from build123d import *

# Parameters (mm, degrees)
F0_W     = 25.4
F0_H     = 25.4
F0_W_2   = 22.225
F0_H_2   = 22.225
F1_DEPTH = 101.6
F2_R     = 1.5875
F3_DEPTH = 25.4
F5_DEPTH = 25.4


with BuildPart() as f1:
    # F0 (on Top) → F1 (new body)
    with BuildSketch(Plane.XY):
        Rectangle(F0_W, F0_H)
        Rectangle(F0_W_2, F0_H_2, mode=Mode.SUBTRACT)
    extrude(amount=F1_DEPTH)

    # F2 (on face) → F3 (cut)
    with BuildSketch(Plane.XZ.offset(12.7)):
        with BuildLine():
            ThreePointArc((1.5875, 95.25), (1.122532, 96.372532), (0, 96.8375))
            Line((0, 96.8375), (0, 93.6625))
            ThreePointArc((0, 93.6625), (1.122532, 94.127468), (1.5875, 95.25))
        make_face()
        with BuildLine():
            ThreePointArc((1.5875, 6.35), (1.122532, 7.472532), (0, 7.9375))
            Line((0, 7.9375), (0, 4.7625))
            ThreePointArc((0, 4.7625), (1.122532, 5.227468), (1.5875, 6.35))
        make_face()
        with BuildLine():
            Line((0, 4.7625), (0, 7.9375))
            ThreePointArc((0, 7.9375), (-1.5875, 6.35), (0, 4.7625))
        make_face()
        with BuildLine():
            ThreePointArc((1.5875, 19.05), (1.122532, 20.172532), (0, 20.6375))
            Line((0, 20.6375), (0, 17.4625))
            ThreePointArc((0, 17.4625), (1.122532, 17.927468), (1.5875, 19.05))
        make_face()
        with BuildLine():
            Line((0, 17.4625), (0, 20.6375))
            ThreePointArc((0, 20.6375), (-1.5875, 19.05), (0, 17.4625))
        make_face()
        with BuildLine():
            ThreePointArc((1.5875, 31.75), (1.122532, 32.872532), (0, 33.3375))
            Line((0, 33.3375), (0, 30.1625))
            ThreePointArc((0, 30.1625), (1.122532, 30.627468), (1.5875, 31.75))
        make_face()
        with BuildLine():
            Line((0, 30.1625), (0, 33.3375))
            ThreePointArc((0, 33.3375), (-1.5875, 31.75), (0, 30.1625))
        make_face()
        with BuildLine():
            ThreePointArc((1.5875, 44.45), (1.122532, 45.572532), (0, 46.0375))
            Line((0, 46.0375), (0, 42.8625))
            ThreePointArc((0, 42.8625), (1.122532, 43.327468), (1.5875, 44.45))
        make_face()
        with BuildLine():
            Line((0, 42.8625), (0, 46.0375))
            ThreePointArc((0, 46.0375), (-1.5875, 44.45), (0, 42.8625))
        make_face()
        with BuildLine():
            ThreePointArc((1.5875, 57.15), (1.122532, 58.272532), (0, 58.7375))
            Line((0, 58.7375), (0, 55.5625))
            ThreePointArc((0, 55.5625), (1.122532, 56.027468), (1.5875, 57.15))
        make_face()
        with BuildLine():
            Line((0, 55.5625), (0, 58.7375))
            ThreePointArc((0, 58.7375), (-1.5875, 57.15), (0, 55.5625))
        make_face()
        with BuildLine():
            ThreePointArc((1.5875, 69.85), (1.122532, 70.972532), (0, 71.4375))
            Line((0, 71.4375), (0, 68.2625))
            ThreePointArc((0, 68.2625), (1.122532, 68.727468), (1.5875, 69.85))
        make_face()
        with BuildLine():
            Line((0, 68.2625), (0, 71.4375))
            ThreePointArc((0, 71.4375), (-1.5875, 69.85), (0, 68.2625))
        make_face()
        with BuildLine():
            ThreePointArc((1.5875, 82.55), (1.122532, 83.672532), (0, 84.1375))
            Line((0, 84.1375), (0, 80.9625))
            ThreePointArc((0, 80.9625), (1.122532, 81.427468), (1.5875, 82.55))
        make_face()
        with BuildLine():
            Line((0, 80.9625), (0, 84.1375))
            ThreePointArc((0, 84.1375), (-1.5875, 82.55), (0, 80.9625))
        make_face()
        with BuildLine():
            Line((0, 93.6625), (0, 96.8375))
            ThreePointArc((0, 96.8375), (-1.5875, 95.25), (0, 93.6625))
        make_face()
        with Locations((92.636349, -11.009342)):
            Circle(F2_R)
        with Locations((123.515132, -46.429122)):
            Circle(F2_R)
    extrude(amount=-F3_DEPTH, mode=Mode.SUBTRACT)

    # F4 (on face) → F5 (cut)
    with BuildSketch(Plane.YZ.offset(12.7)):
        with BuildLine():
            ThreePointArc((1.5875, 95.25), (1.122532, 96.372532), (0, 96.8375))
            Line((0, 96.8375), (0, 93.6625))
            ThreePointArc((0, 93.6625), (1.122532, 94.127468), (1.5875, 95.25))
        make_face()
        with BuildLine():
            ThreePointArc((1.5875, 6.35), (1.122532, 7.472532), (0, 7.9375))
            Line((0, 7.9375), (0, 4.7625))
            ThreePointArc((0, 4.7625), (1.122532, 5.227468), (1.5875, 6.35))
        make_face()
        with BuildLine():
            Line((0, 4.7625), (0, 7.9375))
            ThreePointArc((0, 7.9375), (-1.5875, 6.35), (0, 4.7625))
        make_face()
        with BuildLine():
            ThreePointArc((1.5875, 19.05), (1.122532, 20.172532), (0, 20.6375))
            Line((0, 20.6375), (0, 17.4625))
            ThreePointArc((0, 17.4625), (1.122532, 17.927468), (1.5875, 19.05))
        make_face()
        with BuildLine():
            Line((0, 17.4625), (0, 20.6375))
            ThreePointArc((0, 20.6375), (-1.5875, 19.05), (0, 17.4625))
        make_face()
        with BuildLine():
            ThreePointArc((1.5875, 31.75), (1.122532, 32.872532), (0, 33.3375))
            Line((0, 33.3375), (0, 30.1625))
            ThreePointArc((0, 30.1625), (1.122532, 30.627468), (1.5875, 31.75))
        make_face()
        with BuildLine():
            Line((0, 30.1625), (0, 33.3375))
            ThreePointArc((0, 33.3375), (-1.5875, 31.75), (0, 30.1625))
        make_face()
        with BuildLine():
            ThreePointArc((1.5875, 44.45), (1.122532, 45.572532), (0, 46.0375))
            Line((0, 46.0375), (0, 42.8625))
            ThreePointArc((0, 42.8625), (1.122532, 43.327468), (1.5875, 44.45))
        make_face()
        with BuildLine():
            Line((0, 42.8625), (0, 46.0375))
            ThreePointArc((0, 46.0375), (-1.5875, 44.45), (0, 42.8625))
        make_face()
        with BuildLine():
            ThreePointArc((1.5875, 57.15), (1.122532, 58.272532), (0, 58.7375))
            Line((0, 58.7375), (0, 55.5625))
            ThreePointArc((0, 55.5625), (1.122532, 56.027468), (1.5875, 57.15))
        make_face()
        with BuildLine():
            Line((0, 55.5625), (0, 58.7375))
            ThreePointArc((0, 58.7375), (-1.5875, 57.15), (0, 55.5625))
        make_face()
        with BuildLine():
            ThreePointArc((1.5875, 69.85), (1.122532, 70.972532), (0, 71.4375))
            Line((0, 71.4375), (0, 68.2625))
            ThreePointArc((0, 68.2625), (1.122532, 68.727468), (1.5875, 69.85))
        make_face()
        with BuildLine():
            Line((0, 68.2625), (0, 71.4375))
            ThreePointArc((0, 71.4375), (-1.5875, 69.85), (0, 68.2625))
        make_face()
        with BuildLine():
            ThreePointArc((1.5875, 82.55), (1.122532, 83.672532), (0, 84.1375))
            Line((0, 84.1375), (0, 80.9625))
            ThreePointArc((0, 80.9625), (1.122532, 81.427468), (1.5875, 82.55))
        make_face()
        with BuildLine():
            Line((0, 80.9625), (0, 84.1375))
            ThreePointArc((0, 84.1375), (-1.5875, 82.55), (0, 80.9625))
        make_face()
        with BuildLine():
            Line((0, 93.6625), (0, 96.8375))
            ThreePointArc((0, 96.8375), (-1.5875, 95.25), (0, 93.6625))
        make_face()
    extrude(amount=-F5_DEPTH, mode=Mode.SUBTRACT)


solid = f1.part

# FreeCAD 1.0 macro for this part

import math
import FreeCAD as App
import Part
import Sketcher

V = App.Vector
Q = App.Units.Quantity


def add_polygon(sketch, points):
    """Adds a closed chain of lines whose ends are joined by coincident constraints."""
    first, n = sketch.GeometryCount, len(points)
    for a, b in zip(points, points[1:] + points[:1]):
        sketch.addGeometry(Part.LineSegment(App.Vector(*a, 0), App.Vector(*b, 0)), False)
    for i in range(n):
        sketch.addConstraint(Sketcher.Constraint("Coincident", first + i, 2, first + (i + 1) % n, 1))

doc = App.newDocument("Part")
params = doc.addObject("Spreadsheet::Sheet", "Params")
for row, (alias, value) in enumerate([
    ("sketch1_width", "1 in"),
    ("sketch1_width2", "0.875 in"),
    ("pad1_length", "4 in"),
    ("sketch2_diameter", "0.125 in"),
    ("pocket1_length", "1 in"),
    ("sketch3_radius", "0.0625 in"),
    ("pocket2_length", "1 in"),
], start=1):
    params.set(f"A{row}", alias)
    params.set(f"B{row}", "=" + value)
    params.setAlias(f"B{row}", alias)

body = doc.addObject("PartDesign::Body", "Body")

# Sketch on XY plane
sketch1 = doc.addObject("Sketcher::SketchObject", "Sketch")
body.addObject(sketch1)
sketch1.AttachmentSupport = (doc.XY_Plane, [""])
sketch1.MapMode = "FlatFace"
add_polygon(sketch1, [(-13, 13), (-13, -13), (13, -13), (13, 13)])  # lines 0-3
add_polygon(sketch1, [(11, -11), (-11, -11), (-11, 11), (11, 11)])  # lines 4-7
sketch1.addConstraint([
    Sketcher.Constraint("Vertical", 0),
    Sketcher.Constraint("Horizontal", 1),
    Sketcher.Constraint("Vertical", 2),
    Sketcher.Constraint("Horizontal", 3),
    Sketcher.Constraint("Horizontal", 4),
    Sketcher.Constraint("Vertical", 5),
    Sketcher.Constraint("Horizontal", 6),
    Sketcher.Constraint("Vertical", 7),
    Sketcher.Constraint("Symmetric", 0, 2, 2, 2, -1, 1),
    Sketcher.Constraint("Symmetric", 4, 2, 6, 2, -1, 1),
    Sketcher.Constraint("Equal", 3, 0),
    Sketcher.Constraint("Equal", 6, 5),
    Sketcher.Constraint("DistanceX", 1, 1, 1, 2, Q("1 in")),
    Sketcher.Constraint("DistanceX", 4, 2, 4, 1, Q("0.875 in")),
])
sketch1.setExpression("Constraints[20]", "Params.sketch1_width")
sketch1.setExpression("Constraints[21]", "Params.sketch1_width2")
pad1 = doc.addObject("PartDesign::Pad", "Pad")
body.addObject(pad1)
pad1.Profile = sketch1
pad1.setExpression("Length", "Params.pad1_length")

# Sketch on XZ plane
sketch2 = doc.addObject("Sketcher::SketchObject", "Sketch001")
body.addObject(sketch2)
sketch2.AttachmentSupport = (doc.XZ_Plane, [""])
sketch2.MapMode = "FlatFace"
sketch2.AttachmentOffset = App.Placement(V(0, 0, 0.5 * 25.4), App.Rotation())
sketch2.addGeometry([
    Part.ArcOfCircle(Part.Circle(V(0, 95.2, 0), V(0, 0, 1), 1.6), math.radians(0), math.radians(90)),  # 0
    Part.ArcOfCircle(Part.Circle(V(0, 95.2, 0), V(0, 0, 1), 1.6), math.radians(90), math.radians(270)),  # 1
    Part.ArcOfCircle(Part.Circle(V(0, 95.3, 0), V(0, 0, 1), 1.6), math.radians(-90), math.radians(0)),  # 2
    Part.ArcOfCircle(Part.Circle(V(0, 6.3, 0), V(0, 0, 1), 1.6), math.radians(0), math.radians(90)),  # 3
    Part.ArcOfCircle(Part.Circle(V(0, 6.3, 0), V(0, 0, 1), 1.6), math.radians(90), math.radians(270)),  # 4
    Part.ArcOfCircle(Part.Circle(V(0, 6.4, 0), V(0, 0, 1), 1.6), math.radians(-90), math.radians(0)),  # 5
    Part.ArcOfCircle(Part.Circle(V(0, 19, 0), V(0, 0, 1), 1.6), math.radians(0), math.radians(90)),  # 6
    Part.ArcOfCircle(Part.Circle(V(0, 19.1, 0), V(0, 0, 1), 1.6), math.radians(90), math.radians(270)),  # 7
    Part.ArcOfCircle(Part.Circle(V(0, 19.1, 0), V(0, 0, 1), 1.6), math.radians(-90), math.radians(0)),  # 8
    Part.ArcOfCircle(Part.Circle(V(0, 31.7, 0), V(0, 0, 1), 1.6), math.radians(0), math.radians(90)),  # 9
    Part.ArcOfCircle(Part.Circle(V(0, 31.8, 0), V(0, 0, 1), 1.6), math.radians(90), math.radians(270)),  # 10
    Part.ArcOfCircle(Part.Circle(V(0, 31.8, 0), V(0, 0, 1), 1.6), math.radians(-90), math.radians(0)),  # 11
    Part.ArcOfCircle(Part.Circle(V(0, 44.4, 0), V(0, 0, 1), 1.6), math.radians(0), math.radians(90)),  # 12
    Part.ArcOfCircle(Part.Circle(V(0, 44.5, 0), V(0, 0, 1), 1.6), math.radians(90), math.radians(270)),  # 13
    Part.ArcOfCircle(Part.Circle(V(0, 44.5, 0), V(0, 0, 1), 1.6), math.radians(-90), math.radians(0)),  # 14
    Part.ArcOfCircle(Part.Circle(V(0, 57.1, 0), V(0, 0, 1), 1.6), math.radians(0), math.radians(90)),  # 15
    Part.ArcOfCircle(Part.Circle(V(0, 57.1, 0), V(0, 0, 1), 1.6), math.radians(90), math.radians(270)),  # 16
    Part.ArcOfCircle(Part.Circle(V(0, 57.2, 0), V(0, 0, 1), 1.6), math.radians(-90), math.radians(0)),  # 17
    Part.ArcOfCircle(Part.Circle(V(0, 69.8, 0), V(0, 0, 1), 1.6), math.radians(0), math.radians(90)),  # 18
    Part.ArcOfCircle(Part.Circle(V(0, 69.8, 0), V(0, 0, 1), 1.6), math.radians(90), math.radians(270)),  # 19
    Part.ArcOfCircle(Part.Circle(V(0, 69.9, 0), V(0, 0, 1), 1.6), math.radians(-90), math.radians(0)),  # 20
    Part.ArcOfCircle(Part.Circle(V(0, 82.5, 0), V(0, 0, 1), 1.6), math.radians(0), math.radians(90)),  # 21
    Part.ArcOfCircle(Part.Circle(V(0, 82.5, 0), V(0, 0, 1), 1.6), math.radians(90), math.radians(270)),  # 22
    Part.ArcOfCircle(Part.Circle(V(0, 82.6, 0), V(0, 0, 1), 1.6), math.radians(-90), math.radians(0)),  # 23
    Part.Circle(V(92.6, -11, 0), V(0, 0, 1), 1.6),  # 24
    Part.Circle(V(123.5, -46.4, 0), V(0, 0, 1), 1.6),  # 25
], False)
sketch2.addConstraint([
    Sketcher.Constraint("Tangent", 0, 2, 1, 1),
    Sketcher.Constraint("Tangent", 1, 2, 2, 1),
    Sketcher.Constraint("Tangent", 2, 2, 0, 1),
    Sketcher.Constraint("Tangent", 3, 2, 4, 1),
    Sketcher.Constraint("Tangent", 4, 2, 5, 1),
    Sketcher.Constraint("Tangent", 5, 2, 3, 1),
    Sketcher.Constraint("Tangent", 6, 2, 7, 1),
    Sketcher.Constraint("Tangent", 7, 2, 8, 1),
    Sketcher.Constraint("Tangent", 8, 2, 6, 1),
    Sketcher.Constraint("Tangent", 9, 2, 10, 1),
    Sketcher.Constraint("Tangent", 10, 2, 11, 1),
    Sketcher.Constraint("Tangent", 11, 2, 9, 1),
    Sketcher.Constraint("Tangent", 12, 2, 13, 1),
    Sketcher.Constraint("Tangent", 13, 2, 14, 1),
    Sketcher.Constraint("Tangent", 14, 2, 12, 1),
    Sketcher.Constraint("Tangent", 15, 2, 16, 1),
    Sketcher.Constraint("Tangent", 16, 2, 17, 1),
    Sketcher.Constraint("Tangent", 17, 2, 15, 1),
    Sketcher.Constraint("Tangent", 18, 2, 19, 1),
    Sketcher.Constraint("Tangent", 19, 2, 20, 1),
    Sketcher.Constraint("Tangent", 20, 2, 18, 1),
    Sketcher.Constraint("Tangent", 21, 2, 22, 1),
    Sketcher.Constraint("Tangent", 22, 2, 23, 1),
    Sketcher.Constraint("Tangent", 23, 2, 21, 1),
    Sketcher.Constraint("Equal", 2, 3),
    Sketcher.Constraint("Equal", 5, 6),
    Sketcher.Constraint("Equal", 8, 9),
    Sketcher.Constraint("Equal", 11, 12),
    Sketcher.Constraint("Equal", 14, 15),
    Sketcher.Constraint("Equal", 17, 18),
    Sketcher.Constraint("Equal", 20, 21),
    Sketcher.Constraint("Equal", 23, 24),
    Sketcher.Constraint("Equal", 24, 25),
    Sketcher.Constraint("PointOnObject", 0, 3, -2),
    Sketcher.Constraint("PointOnObject", 3, 3, -2),
    Sketcher.Constraint("PointOnObject", 6, 3, -2),
    Sketcher.Constraint("PointOnObject", 9, 3, -2),
    Sketcher.Constraint("PointOnObject", 12, 3, -2),
    Sketcher.Constraint("PointOnObject", 15, 3, -2),
    Sketcher.Constraint("PointOnObject", 18, 3, -2),
    Sketcher.Constraint("PointOnObject", 21, 3, -2),
    Sketcher.Constraint("PointOnObject", 0, 2, -2),
    Sketcher.Constraint("PointOnObject", 1, 2, -2),
    Sketcher.Constraint("PointOnObject", 3, 2, -2),
    Sketcher.Constraint("PointOnObject", 4, 2, -2),
    Sketcher.Constraint("PointOnObject", 6, 2, -2),
    Sketcher.Constraint("PointOnObject", 7, 2, -2),
    Sketcher.Constraint("PointOnObject", 9, 2, -2),
    Sketcher.Constraint("PointOnObject", 10, 2, -2),
    Sketcher.Constraint("PointOnObject", 12, 2, -2),
    Sketcher.Constraint("PointOnObject", 13, 2, -2),
    Sketcher.Constraint("PointOnObject", 15, 2, -2),
    Sketcher.Constraint("PointOnObject", 16, 2, -2),
    Sketcher.Constraint("PointOnObject", 18, 2, -2),
    Sketcher.Constraint("PointOnObject", 19, 2, -2),
    Sketcher.Constraint("PointOnObject", 21, 2, -2),
    Sketcher.Constraint("PointOnObject", 22, 2, -2),
    Sketcher.Constraint("Horizontal", 1, 3, 2, 2),
    Sketcher.Constraint("Horizontal", 4, 3, 5, 2),
    Sketcher.Constraint("Horizontal", 7, 3, 8, 2),
    Sketcher.Constraint("Horizontal", 10, 3, 11, 2),
    Sketcher.Constraint("Horizontal", 13, 3, 14, 2),
    Sketcher.Constraint("Horizontal", 16, 3, 17, 2),
    Sketcher.Constraint("Horizontal", 19, 3, 20, 2),
    Sketcher.Constraint("Horizontal", 22, 3, 23, 2),
    Sketcher.Constraint("Diameter", 24, Q("0.125 in")),
    Sketcher.Constraint("DistanceY", 6, 3, 0, 3, Q("3 in")),
    Sketcher.Constraint("DistanceY", 5, 3, 9, 3, Q("1 in")),
    Sketcher.Constraint("DistanceY", 8, 3, 12, 3, Q("1 in")),
    Sketcher.Constraint("DistanceY", 11, 3, 15, 3, Q("1 in")),
    Sketcher.Constraint("DistanceY", 14, 3, 18, 3, Q("1 in")),
    Sketcher.Constraint("DistanceY", 3, 3, 0, 3, Q("3.5 in")),
    Sketcher.Constraint("DistanceY", 20, 3, 21, 3, Q("0.5 in")),
    Sketcher.Constraint("DistanceY", -1, 1, 0, 3, Q("3.75 in")),
    Sketcher.Constraint("DistanceX", 24, 3, 25, 3, Q("1.2157001 in")),
    Sketcher.Constraint("DistanceX", -1, 1, 24, 3, 92.636349),
    Sketcher.Constraint("DistanceY", 24, 3, 4, 3, 17.359342),
    Sketcher.Constraint("DistanceY", 25, 3, 24, 3, 35.41978),
])
sketch2.setExpression("Constraints[65]", "Params.sketch2_diameter")
pocket1 = doc.addObject("PartDesign::Pocket", "Pocket")
body.addObject(pocket1)
pocket1.Profile = sketch2
pocket1.setExpression("Length", "Params.pocket1_length")

# Sketch on YZ plane
sketch3 = doc.addObject("Sketcher::SketchObject", "Sketch002")
body.addObject(sketch3)
sketch3.AttachmentSupport = (doc.YZ_Plane, [""])
sketch3.MapMode = "FlatFace"
sketch3.AttachmentOffset = App.Placement(V(0, 0, 0.5 * 25.4), App.Rotation())
sketch3.addGeometry([
    Part.ArcOfCircle(Part.Circle(V(0, 95.2, 0), V(0, 0, 1), 1.6), math.radians(0), math.radians(90)),  # 0
    Part.ArcOfCircle(Part.Circle(V(0, 95.2, 0), V(0, 0, 1), 1.6), math.radians(90), math.radians(270)),  # 1
    Part.ArcOfCircle(Part.Circle(V(0, 95.3, 0), V(0, 0, 1), 1.6), math.radians(-90), math.radians(0)),  # 2
    Part.ArcOfCircle(Part.Circle(V(0, 6.3, 0), V(0, 0, 1), 1.6), math.radians(0), math.radians(90)),  # 3
    Part.ArcOfCircle(Part.Circle(V(0, 6.3, 0), V(0, 0, 1), 1.6), math.radians(90), math.radians(270)),  # 4
    Part.ArcOfCircle(Part.Circle(V(0, 6.4, 0), V(0, 0, 1), 1.6), math.radians(-90), math.radians(0)),  # 5
    Part.ArcOfCircle(Part.Circle(V(0, 19, 0), V(0, 0, 1), 1.6), math.radians(0), math.radians(90)),  # 6
    Part.ArcOfCircle(Part.Circle(V(0, 19.1, 0), V(0, 0, 1), 1.6), math.radians(90), math.radians(270)),  # 7
    Part.ArcOfCircle(Part.Circle(V(0, 19.1, 0), V(0, 0, 1), 1.6), math.radians(-90), math.radians(0)),  # 8
    Part.ArcOfCircle(Part.Circle(V(0, 31.7, 0), V(0, 0, 1), 1.6), math.radians(0), math.radians(90)),  # 9
    Part.ArcOfCircle(Part.Circle(V(0, 31.8, 0), V(0, 0, 1), 1.6), math.radians(90), math.radians(270)),  # 10
    Part.ArcOfCircle(Part.Circle(V(0, 31.8, 0), V(0, 0, 1), 1.6), math.radians(-90), math.radians(0)),  # 11
    Part.ArcOfCircle(Part.Circle(V(0, 44.4, 0), V(0, 0, 1), 1.6), math.radians(0), math.radians(90)),  # 12
    Part.ArcOfCircle(Part.Circle(V(0, 44.5, 0), V(0, 0, 1), 1.6), math.radians(90), math.radians(270)),  # 13
    Part.ArcOfCircle(Part.Circle(V(0, 44.5, 0), V(0, 0, 1), 1.6), math.radians(-90), math.radians(0)),  # 14
    Part.ArcOfCircle(Part.Circle(V(0, 57.1, 0), V(0, 0, 1), 1.6), math.radians(0), math.radians(90)),  # 15
    Part.ArcOfCircle(Part.Circle(V(0, 57.1, 0), V(0, 0, 1), 1.6), math.radians(90), math.radians(270)),  # 16
    Part.ArcOfCircle(Part.Circle(V(0, 57.2, 0), V(0, 0, 1), 1.6), math.radians(-90), math.radians(0)),  # 17
    Part.ArcOfCircle(Part.Circle(V(0, 69.8, 0), V(0, 0, 1), 1.6), math.radians(0), math.radians(90)),  # 18
    Part.ArcOfCircle(Part.Circle(V(0, 69.8, 0), V(0, 0, 1), 1.6), math.radians(90), math.radians(270)),  # 19
    Part.ArcOfCircle(Part.Circle(V(0, 69.9, 0), V(0, 0, 1), 1.6), math.radians(-90), math.radians(0)),  # 20
    Part.ArcOfCircle(Part.Circle(V(0, 82.5, 0), V(0, 0, 1), 1.6), math.radians(0), math.radians(90)),  # 21
    Part.ArcOfCircle(Part.Circle(V(0, 82.5, 0), V(0, 0, 1), 1.6), math.radians(90), math.radians(270)),  # 22
    Part.ArcOfCircle(Part.Circle(V(0, 82.6, 0), V(0, 0, 1), 1.6), math.radians(-90), math.radians(0)),  # 23
], False)
sketch3.addConstraint([
    Sketcher.Constraint("Tangent", 0, 2, 1, 1),
    Sketcher.Constraint("Tangent", 1, 2, 2, 1),
    Sketcher.Constraint("Tangent", 2, 2, 0, 1),
    Sketcher.Constraint("Tangent", 3, 2, 4, 1),
    Sketcher.Constraint("Tangent", 4, 2, 5, 1),
    Sketcher.Constraint("Tangent", 5, 2, 3, 1),
    Sketcher.Constraint("Tangent", 6, 2, 7, 1),
    Sketcher.Constraint("Tangent", 7, 2, 8, 1),
    Sketcher.Constraint("Tangent", 8, 2, 6, 1),
    Sketcher.Constraint("Tangent", 9, 2, 10, 1),
    Sketcher.Constraint("Tangent", 10, 2, 11, 1),
    Sketcher.Constraint("Tangent", 11, 2, 9, 1),
    Sketcher.Constraint("Tangent", 12, 2, 13, 1),
    Sketcher.Constraint("Tangent", 13, 2, 14, 1),
    Sketcher.Constraint("Tangent", 14, 2, 12, 1),
    Sketcher.Constraint("Tangent", 15, 2, 16, 1),
    Sketcher.Constraint("Tangent", 16, 2, 17, 1),
    Sketcher.Constraint("Tangent", 17, 2, 15, 1),
    Sketcher.Constraint("Tangent", 18, 2, 19, 1),
    Sketcher.Constraint("Tangent", 19, 2, 20, 1),
    Sketcher.Constraint("Tangent", 20, 2, 18, 1),
    Sketcher.Constraint("Tangent", 21, 2, 22, 1),
    Sketcher.Constraint("Tangent", 22, 2, 23, 1),
    Sketcher.Constraint("Tangent", 23, 2, 21, 1),
    Sketcher.Constraint("Equal", 2, 3),
    Sketcher.Constraint("Equal", 5, 6),
    Sketcher.Constraint("Equal", 8, 9),
    Sketcher.Constraint("Equal", 11, 12),
    Sketcher.Constraint("Equal", 14, 15),
    Sketcher.Constraint("Equal", 17, 18),
    Sketcher.Constraint("Equal", 20, 21),
    Sketcher.Constraint("PointOnObject", 0, 3, -2),
    Sketcher.Constraint("PointOnObject", 3, 3, -2),
    Sketcher.Constraint("PointOnObject", 6, 3, -2),
    Sketcher.Constraint("PointOnObject", 9, 3, -2),
    Sketcher.Constraint("PointOnObject", 12, 3, -2),
    Sketcher.Constraint("PointOnObject", 15, 3, -2),
    Sketcher.Constraint("PointOnObject", 18, 3, -2),
    Sketcher.Constraint("PointOnObject", 21, 3, -2),
    Sketcher.Constraint("PointOnObject", 0, 2, -2),
    Sketcher.Constraint("PointOnObject", 1, 2, -2),
    Sketcher.Constraint("PointOnObject", 3, 2, -2),
    Sketcher.Constraint("PointOnObject", 4, 2, -2),
    Sketcher.Constraint("PointOnObject", 6, 2, -2),
    Sketcher.Constraint("PointOnObject", 7, 2, -2),
    Sketcher.Constraint("PointOnObject", 9, 2, -2),
    Sketcher.Constraint("PointOnObject", 10, 2, -2),
    Sketcher.Constraint("PointOnObject", 12, 2, -2),
    Sketcher.Constraint("PointOnObject", 13, 2, -2),
    Sketcher.Constraint("PointOnObject", 15, 2, -2),
    Sketcher.Constraint("PointOnObject", 16, 2, -2),
    Sketcher.Constraint("PointOnObject", 18, 2, -2),
    Sketcher.Constraint("PointOnObject", 19, 2, -2),
    Sketcher.Constraint("PointOnObject", 21, 2, -2),
    Sketcher.Constraint("PointOnObject", 22, 2, -2),
    Sketcher.Constraint("Horizontal", 1, 3, 2, 2),
    Sketcher.Constraint("Horizontal", 4, 3, 5, 2),
    Sketcher.Constraint("Horizontal", 7, 3, 8, 2),
    Sketcher.Constraint("Horizontal", 10, 3, 11, 2),
    Sketcher.Constraint("Horizontal", 13, 3, 14, 2),
    Sketcher.Constraint("Horizontal", 16, 3, 17, 2),
    Sketcher.Constraint("Horizontal", 19, 3, 20, 2),
    Sketcher.Constraint("Horizontal", 22, 3, 23, 2),
    Sketcher.Constraint("Radius", 0, Q("0.0625 in")),
    Sketcher.Constraint("DistanceY", 6, 3, 0, 3, Q("3 in")),
    Sketcher.Constraint("DistanceY", 5, 3, 9, 3, Q("1 in")),
    Sketcher.Constraint("DistanceY", 8, 3, 12, 3, Q("1 in")),
    Sketcher.Constraint("DistanceY", 11, 3, 15, 3, Q("1 in")),
    Sketcher.Constraint("DistanceY", 14, 3, 18, 3, Q("1 in")),
    Sketcher.Constraint("DistanceY", 3, 3, 0, 3, Q("3.5 in")),
    Sketcher.Constraint("DistanceY", 20, 3, 21, 3, Q("0.5 in")),
    Sketcher.Constraint("DistanceY", -1, 1, 0, 3, Q("3.75 in")),
])
sketch3.setExpression("Constraints[63]", "Params.sketch3_radius")
pocket2 = doc.addObject("PartDesign::Pocket", "Pocket001")
body.addObject(pocket2)
pocket2.Profile = sketch3
pocket2.setExpression("Length", "Params.pocket2_length")

doc.recompute()
